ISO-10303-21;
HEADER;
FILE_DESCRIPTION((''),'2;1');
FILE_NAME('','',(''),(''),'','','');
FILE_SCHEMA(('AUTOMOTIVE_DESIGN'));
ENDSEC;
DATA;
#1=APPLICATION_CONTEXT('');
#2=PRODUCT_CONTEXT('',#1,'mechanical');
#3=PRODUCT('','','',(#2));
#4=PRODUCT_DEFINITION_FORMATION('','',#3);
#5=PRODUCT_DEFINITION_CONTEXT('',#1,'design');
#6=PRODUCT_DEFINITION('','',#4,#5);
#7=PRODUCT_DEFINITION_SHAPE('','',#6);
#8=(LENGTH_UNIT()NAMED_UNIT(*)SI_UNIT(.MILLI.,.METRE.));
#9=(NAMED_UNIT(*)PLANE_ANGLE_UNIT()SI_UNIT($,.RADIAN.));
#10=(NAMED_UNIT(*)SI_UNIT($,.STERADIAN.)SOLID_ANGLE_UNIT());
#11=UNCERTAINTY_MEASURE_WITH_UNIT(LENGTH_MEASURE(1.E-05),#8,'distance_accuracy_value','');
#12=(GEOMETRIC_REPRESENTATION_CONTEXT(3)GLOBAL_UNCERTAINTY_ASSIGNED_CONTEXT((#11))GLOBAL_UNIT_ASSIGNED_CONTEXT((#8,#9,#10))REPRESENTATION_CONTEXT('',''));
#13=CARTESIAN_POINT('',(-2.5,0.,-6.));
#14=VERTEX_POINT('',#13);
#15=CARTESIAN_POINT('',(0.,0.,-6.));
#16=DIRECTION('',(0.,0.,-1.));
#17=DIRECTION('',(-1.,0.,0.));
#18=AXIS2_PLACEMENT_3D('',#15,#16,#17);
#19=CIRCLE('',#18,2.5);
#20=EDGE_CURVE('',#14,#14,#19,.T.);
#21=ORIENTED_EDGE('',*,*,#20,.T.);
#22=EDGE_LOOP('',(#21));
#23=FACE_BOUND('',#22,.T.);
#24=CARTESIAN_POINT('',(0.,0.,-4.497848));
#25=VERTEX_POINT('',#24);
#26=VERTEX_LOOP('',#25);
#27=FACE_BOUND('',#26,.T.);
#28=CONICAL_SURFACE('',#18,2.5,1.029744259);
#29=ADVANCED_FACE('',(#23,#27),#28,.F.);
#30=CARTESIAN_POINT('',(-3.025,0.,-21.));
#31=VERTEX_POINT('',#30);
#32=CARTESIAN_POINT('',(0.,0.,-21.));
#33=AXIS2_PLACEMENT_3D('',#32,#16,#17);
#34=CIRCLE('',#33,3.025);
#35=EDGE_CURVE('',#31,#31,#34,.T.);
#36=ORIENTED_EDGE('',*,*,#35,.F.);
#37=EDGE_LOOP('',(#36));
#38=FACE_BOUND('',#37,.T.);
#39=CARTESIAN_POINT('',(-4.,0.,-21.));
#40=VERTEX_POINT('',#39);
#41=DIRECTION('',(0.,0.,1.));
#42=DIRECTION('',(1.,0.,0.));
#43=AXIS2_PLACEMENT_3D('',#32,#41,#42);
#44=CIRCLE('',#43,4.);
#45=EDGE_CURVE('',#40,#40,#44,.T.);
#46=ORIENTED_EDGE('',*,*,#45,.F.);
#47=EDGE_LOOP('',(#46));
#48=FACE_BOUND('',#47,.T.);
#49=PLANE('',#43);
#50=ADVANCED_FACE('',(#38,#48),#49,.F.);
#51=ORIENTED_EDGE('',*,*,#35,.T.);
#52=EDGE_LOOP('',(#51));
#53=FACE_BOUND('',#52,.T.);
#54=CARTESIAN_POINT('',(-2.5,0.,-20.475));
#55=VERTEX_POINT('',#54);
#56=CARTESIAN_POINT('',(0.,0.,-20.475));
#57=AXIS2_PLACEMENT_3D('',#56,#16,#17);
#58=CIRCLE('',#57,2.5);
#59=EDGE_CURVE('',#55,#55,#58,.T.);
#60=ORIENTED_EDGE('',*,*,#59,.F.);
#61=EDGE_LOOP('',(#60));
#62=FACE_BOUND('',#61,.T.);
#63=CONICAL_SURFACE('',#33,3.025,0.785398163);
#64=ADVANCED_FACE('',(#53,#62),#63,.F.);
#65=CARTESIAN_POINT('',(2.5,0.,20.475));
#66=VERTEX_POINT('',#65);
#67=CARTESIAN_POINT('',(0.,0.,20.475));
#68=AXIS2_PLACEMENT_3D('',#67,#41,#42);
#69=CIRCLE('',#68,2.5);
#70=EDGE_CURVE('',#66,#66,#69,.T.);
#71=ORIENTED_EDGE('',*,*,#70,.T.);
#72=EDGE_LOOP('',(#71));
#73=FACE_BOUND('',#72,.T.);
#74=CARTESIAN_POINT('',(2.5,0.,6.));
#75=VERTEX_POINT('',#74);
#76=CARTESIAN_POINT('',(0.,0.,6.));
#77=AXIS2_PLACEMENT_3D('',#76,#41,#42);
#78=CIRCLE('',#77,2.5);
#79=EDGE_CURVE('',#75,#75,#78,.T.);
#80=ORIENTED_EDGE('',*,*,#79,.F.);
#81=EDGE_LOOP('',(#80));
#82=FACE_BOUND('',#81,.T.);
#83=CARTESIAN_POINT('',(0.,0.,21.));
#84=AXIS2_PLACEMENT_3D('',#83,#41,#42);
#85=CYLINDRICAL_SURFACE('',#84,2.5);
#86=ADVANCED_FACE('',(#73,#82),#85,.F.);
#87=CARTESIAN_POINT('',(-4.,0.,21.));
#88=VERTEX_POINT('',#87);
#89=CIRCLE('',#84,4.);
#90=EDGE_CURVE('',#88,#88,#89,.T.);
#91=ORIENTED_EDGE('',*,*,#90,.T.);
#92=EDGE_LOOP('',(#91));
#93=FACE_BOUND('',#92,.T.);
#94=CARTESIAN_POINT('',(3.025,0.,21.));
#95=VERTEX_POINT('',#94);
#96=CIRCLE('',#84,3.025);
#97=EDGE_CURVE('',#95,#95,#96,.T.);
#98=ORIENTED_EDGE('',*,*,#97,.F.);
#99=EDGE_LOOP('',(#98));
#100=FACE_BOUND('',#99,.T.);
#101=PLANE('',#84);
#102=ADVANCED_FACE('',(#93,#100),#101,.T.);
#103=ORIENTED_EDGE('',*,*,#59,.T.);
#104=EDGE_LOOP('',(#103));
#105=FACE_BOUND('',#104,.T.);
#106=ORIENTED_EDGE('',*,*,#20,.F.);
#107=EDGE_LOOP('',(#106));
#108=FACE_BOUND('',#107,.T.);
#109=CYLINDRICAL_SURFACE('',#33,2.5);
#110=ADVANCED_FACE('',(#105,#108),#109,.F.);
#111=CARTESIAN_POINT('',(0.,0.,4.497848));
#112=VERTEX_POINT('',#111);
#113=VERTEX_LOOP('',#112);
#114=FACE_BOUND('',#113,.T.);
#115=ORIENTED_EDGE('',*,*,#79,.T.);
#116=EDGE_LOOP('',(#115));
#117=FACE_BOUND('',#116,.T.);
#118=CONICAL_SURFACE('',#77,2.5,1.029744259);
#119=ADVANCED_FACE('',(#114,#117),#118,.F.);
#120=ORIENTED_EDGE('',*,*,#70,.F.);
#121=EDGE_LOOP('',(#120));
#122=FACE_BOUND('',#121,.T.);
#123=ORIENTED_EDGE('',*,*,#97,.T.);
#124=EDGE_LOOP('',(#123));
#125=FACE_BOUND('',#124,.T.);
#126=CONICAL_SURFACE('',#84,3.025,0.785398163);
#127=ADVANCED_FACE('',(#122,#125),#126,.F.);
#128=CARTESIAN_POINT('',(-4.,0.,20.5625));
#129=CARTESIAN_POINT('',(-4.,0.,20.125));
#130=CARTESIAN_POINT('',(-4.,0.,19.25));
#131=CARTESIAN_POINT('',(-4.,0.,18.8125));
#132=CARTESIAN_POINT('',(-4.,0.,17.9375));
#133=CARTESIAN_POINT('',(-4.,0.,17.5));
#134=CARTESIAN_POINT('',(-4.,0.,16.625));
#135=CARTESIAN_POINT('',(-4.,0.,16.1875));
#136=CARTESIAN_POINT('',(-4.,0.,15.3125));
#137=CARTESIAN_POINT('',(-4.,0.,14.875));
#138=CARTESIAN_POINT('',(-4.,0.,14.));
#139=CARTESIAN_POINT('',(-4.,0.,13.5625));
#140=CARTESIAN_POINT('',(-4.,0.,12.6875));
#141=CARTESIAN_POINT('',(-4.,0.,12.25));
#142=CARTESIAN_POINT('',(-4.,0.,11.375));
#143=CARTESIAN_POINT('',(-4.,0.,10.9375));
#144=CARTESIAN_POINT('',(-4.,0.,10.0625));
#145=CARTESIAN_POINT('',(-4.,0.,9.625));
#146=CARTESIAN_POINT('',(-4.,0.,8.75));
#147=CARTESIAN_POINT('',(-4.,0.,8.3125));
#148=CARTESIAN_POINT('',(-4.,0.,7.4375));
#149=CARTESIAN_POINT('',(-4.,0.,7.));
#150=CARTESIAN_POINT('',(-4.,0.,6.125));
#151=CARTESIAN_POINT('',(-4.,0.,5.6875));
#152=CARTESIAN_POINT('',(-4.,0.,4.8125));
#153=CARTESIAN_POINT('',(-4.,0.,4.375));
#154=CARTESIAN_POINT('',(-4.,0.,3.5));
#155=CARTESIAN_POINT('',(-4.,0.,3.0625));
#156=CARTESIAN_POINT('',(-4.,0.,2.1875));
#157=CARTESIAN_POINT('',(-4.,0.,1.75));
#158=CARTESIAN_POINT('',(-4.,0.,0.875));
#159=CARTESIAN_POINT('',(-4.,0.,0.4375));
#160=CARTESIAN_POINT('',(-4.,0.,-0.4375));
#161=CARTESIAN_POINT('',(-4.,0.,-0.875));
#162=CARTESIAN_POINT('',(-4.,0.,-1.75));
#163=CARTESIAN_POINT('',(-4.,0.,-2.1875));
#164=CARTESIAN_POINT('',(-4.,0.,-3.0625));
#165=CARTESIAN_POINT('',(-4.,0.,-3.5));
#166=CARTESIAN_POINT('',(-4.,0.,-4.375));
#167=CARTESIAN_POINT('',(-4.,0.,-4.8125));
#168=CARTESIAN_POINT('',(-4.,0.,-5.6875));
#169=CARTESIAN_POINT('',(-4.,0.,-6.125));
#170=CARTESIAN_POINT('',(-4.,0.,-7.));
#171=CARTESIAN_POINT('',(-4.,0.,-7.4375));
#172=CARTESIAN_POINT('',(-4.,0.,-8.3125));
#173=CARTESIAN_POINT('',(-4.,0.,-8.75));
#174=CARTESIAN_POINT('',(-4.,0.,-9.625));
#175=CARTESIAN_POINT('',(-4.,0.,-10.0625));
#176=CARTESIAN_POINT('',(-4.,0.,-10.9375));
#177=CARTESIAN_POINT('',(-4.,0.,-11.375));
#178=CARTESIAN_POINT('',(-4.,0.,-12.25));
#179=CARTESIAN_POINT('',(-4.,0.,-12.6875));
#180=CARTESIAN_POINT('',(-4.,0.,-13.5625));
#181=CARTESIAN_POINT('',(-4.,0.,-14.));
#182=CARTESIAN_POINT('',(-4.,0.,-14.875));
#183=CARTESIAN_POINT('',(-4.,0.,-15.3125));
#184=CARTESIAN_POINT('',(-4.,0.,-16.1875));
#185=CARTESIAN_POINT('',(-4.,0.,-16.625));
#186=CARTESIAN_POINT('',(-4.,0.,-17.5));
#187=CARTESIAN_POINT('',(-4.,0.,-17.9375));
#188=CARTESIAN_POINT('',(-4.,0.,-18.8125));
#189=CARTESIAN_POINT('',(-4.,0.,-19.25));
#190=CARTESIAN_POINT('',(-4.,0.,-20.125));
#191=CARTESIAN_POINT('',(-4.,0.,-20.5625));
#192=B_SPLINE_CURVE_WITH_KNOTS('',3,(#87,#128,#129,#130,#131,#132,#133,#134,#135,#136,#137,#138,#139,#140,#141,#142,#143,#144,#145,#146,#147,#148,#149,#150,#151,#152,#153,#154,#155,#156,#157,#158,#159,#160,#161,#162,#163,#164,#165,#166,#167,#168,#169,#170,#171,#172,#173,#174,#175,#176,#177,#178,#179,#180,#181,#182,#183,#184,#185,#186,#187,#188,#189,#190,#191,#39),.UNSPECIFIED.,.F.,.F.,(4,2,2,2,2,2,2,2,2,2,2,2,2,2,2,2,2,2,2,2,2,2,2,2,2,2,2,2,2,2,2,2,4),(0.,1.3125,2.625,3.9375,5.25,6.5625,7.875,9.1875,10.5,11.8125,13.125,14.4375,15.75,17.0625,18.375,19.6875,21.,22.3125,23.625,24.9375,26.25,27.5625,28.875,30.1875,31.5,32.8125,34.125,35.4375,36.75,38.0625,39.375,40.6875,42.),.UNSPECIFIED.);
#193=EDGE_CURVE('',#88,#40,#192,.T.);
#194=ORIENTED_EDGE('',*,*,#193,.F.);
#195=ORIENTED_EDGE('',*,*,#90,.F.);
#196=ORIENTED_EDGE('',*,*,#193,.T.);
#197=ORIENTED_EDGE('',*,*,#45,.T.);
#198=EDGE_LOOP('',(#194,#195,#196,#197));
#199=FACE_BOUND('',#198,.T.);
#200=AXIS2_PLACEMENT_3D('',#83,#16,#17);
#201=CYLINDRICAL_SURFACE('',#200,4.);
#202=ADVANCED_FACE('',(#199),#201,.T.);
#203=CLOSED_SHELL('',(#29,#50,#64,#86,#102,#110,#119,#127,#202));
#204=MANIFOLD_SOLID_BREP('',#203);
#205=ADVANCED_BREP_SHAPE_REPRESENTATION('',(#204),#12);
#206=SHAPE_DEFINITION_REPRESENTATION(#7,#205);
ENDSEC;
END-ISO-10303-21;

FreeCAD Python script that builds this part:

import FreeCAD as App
import Part
import Sketcher
Q = App.Units.Quantity

doc = App.newDocument("Part")
body = doc.addObject("PartDesign::Body", "Body")

sketch1 = body.newObject("Sketcher::SketchObject", "Sketch")
sketch1.AttachmentSupport = (doc.getObject("XY_Plane"), [""])
sketch1.MapMode = "FlatFace"
sketch1.addGeometry(Part.Circle(App.Vector(0, 0, 0), App.Vector(0, 0, 1), 4), False)
sketch1.addConstraint(Sketcher.Constraint("Coincident", 0, 3, -1, 1))
sketch1.addConstraint(Sketcher.Constraint("Diameter", 0, Q("8 mm")))
pad1 = body.newObject("PartDesign::Pad", "Pad")
pad1.Profile = sketch1
pad1.Length = 42
pad1.Midplane = True

sketch2 = body.newObject("Sketcher::SketchObject", "Sketch001")
sketch2.AttachmentSupport = (doc.getObject("YZ_Plane"), [""])
sketch2.MapMode = "FlatFace"
sketch2.addGeometry(Part.LineSegment(App.Vector(0, 4.497848, 0), App.Vector(0, 21, 0)), False)
sketch2.addGeometry(Part.LineSegment(App.Vector(0, 21, 0), App.Vector(-3.025, 21, 0)), False)
sketch2.addGeometry(Part.LineSegment(App.Vector(-3.025, 21, 0), App.Vector(-2.5, 20.475, 0)), False)
sketch2.addGeometry(Part.LineSegment(App.Vector(-2.5, 20.475, 0), App.Vector(-2.5, 6, 0)), False)
sketch2.addGeometry(Part.LineSegment(App.Vector(-2.5, 6, 0), App.Vector(0, 4.497848, 0)), False)
sketch2.addConstraint(Sketcher.Constraint("Coincident", 0, 2, 1, 1))
sketch2.addConstraint(Sketcher.Constraint("Coincident", 1, 2, 2, 1))
sketch2.addConstraint(Sketcher.Constraint("Coincident", 2, 2, 3, 1))
sketch2.addConstraint(Sketcher.Constraint("Coincident", 3, 2, 4, 1))
sketch2.addConstraint(Sketcher.Constraint("Coincident", 4, 2, 0, 1))
sketch2.addConstraint(Sketcher.Constraint("Vertical", 0))
sketch2.addConstraint(Sketcher.Constraint("Horizontal", 1))
sketch2.addConstraint(Sketcher.Constraint("Vertical", 3))
sketch2.addConstraint(Sketcher.Constraint("PointOnObject", 0, 2, -2))
sketch2.addConstraint(Sketcher.Constraint("Angle", 2, Q("-45 deg")))
sketch2.addConstraint(Sketcher.Constraint("Angle", 4, Q("-31 deg")))
sketch2.addConstraint(Sketcher.Constraint("DistanceY", -1, 1, 0, 2, Q("21 mm")))
sketch2.addConstraint(Sketcher.Constraint("DistanceY", -1, 1, 3, 2, Q("6 mm")))
sketch2.addConstraint(Sketcher.Constraint("DistanceX", 2, 2, -1, 1, Q("2.5 mm")))
sketch2.addConstraint(Sketcher.Constraint("DistanceX", 1, 2, 1, 1, Q("3.025 mm")))
groove = body.newObject("PartDesign::Groove", "Groove")
groove.Profile = sketch2
groove.ReferenceAxis = (sketch2, ["V_Axis"])
groove.Angle = 360
doc.recompute()

mirrored = body.newObject("PartDesign::Mirrored", "Mirrored")
mirrored.Originals = [groove]
mirrored.MirrorPlane = (doc.getObject("XY_Plane"), [""])
body.Tip = mirrored

doc.recompute()
